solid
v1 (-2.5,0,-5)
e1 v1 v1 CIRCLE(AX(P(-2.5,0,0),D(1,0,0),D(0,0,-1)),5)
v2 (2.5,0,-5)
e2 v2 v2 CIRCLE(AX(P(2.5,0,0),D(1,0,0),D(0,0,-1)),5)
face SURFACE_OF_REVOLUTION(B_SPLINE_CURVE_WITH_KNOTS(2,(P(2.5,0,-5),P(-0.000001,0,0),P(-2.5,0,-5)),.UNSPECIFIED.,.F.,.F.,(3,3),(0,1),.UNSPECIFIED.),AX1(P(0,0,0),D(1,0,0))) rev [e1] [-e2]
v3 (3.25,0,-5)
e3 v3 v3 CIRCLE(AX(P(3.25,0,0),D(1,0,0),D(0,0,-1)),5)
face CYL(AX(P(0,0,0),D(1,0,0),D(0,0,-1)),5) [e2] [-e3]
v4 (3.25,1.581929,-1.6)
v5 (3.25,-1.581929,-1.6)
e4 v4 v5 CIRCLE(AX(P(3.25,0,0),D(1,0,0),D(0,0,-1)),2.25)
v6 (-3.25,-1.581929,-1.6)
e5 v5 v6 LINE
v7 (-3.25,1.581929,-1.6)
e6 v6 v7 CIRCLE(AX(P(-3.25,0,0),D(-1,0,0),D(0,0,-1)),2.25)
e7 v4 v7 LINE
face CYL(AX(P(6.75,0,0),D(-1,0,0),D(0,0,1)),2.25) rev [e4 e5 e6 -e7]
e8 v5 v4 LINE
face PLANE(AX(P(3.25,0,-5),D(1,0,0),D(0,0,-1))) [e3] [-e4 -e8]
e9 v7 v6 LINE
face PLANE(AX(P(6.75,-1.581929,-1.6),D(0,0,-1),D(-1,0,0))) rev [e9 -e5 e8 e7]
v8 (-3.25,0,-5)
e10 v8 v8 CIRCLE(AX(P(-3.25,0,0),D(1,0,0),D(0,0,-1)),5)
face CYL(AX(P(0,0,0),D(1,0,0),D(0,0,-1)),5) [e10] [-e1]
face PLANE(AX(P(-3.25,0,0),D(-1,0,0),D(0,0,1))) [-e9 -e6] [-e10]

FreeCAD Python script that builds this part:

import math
import FreeCAD as App
import Part
import Sketcher
from FreeCAD import Vector
Q = App.Units.Quantity

doc = App.newDocument("Part")
body = doc.addObject("PartDesign::Body", "Body")

# Sketch on XZ plane
sketch1 = doc.addObject("Sketcher::SketchObject", "Sketch")
body.addObject(sketch1)
sketch1.AttachmentSupport = (doc.XZ_Plane, [""])
sketch1.MapMode = "FlatFace"
sketch1.addGeometry(Part.LineSegment(Vector(-3.25, -5, 0), Vector(-3.25, 0, 0)), False)
sketch1.addGeometry(Part.LineSegment(Vector(-3.25, 0, 0), Vector(3.25, 0, 0)), False)
sketch1.addGeometry(Part.LineSegment(Vector(3.25, 0, 0), Vector(3.25, -5, 0)), False)
sketch1.addGeometry(Part.LineSegment(Vector(3.25, -5, 0), Vector(2.5, -5, 0)), False)
sketch1.addGeometry(Part.BSplineCurve([Vector(-2.5, -5, 0), Vector(-0.000001, 0, 0), Vector(2.5, -5, 0)], [3, 3], [0, 1], False, 2, [1, 1, 1], False), False)
sketch1.addGeometry(Part.LineSegment(Vector(-2.5, -5, 0), Vector(-3.25, -5, 0)), False)
sketch1.addConstraint(Sketcher.Constraint("Block", 4))
sketch1.addConstraint(Sketcher.Constraint("Coincident", 0, 2, 1, 1))
sketch1.addConstraint(Sketcher.Constraint("Coincident", 1, 2, 2, 1))
sketch1.addConstraint(Sketcher.Constraint("Coincident", 2, 2, 3, 1))
sketch1.addConstraint(Sketcher.Constraint("Coincident", 3, 2, 4, 2))
sketch1.addConstraint(Sketcher.Constraint("Coincident", 4, 1, 5, 1))
sketch1.addConstraint(Sketcher.Constraint("Coincident", 5, 2, 0, 1))
sketch1.addConstraint(Sketcher.Constraint("Vertical", 0))
sketch1.addConstraint(Sketcher.Constraint("Horizontal", 1))
sketch1.addConstraint(Sketcher.Constraint("Vertical", 2))
sketch1.addConstraint(Sketcher.Constraint("Horizontal", 3))
sketch1.addConstraint(Sketcher.Constraint("Horizontal", 5))
sketch1.addConstraint(Sketcher.Constraint("Symmetric", 0, 2, 1, 2, -1, 1))
sketch1.addConstraint(Sketcher.Constraint("DistanceX", 1, 1, 1, 2, Q("6.5 mm")))
revolution = doc.addObject("PartDesign::Revolution", "Revolution")
body.addObject(revolution)
revolution.Profile = sketch1
revolution.ReferenceAxis = (sketch1, ["H_Axis"])
revolution.Angle = 360

# Sketch on YZ plane
sketch2 = doc.addObject("Sketcher::SketchObject", "Sketch001")
body.addObject(sketch2)
sketch2.AttachmentSupport = (doc.YZ_Plane, [""])
sketch2.MapMode = "FlatFace"
sketch2.AttachmentOffset = App.Placement(Vector(0, 0, -3.25), App.Rotation())
sketch2.addGeometry(Part.LineSegment(Vector(1.581929, -1.6, 0), Vector(-1.581929, -1.6, 0)), False)
sketch2.addGeometry(Part.ArcOfCircle(Part.Circle(Vector(0, 0, 0), Vector(0, 0, 1), 2.25), math.radians(-45.32539), math.radians(225.32539)), False)
sketch2.addConstraint(Sketcher.Constraint("Coincident", 0, 1, 1, 1))
sketch2.addConstraint(Sketcher.Constraint("Coincident", 1, 2, 0, 2))
sketch2.addConstraint(Sketcher.Constraint("Horizontal", 0))
sketch2.addConstraint(Sketcher.Constraint("Coincident", 1, 3, -1, 1))
sketch2.addConstraint(Sketcher.Constraint("Radius", 1, Q("2.25 mm")))
sketch2.addConstraint(Sketcher.Constraint("DistanceY", 0, 1, -1, 1, Q("1.6 mm")))
pocket1 = doc.addObject("PartDesign::Pocket", "Pocket")
body.addObject(pocket1)
pocket1.Profile = sketch2
pocket1.Length = 10
pocket1.Reversed = True

doc.recompute()
